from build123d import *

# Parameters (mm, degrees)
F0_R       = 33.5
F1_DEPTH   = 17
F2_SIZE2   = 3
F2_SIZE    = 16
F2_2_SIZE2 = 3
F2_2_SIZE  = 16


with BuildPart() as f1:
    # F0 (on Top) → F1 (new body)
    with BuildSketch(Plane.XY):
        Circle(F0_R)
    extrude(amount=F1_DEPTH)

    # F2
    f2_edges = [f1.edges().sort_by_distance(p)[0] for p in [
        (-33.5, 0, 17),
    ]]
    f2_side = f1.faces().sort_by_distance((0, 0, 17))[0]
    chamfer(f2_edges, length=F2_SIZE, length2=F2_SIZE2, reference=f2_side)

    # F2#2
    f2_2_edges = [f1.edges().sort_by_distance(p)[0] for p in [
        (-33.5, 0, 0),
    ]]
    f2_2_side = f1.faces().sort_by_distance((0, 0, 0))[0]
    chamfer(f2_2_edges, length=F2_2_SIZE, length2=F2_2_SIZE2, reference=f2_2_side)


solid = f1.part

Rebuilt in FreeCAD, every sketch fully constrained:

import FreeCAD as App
import Part
import Sketcher
from FreeCAD import Vector
Q = App.Units.Quantity


def edges_at(feature, points):
    """Names of the edges that pass closest to the given points."""
    edges = feature.Shape.Edges
    near = lambda p: min(range(len(edges)), key=lambda i: edges[i].distToShape(Part.Vertex(*p))[0])
    return sorted({f"Edge{near(p) + 1}" for p in points})

doc = App.newDocument("Part")
body = doc.addObject("PartDesign::Body", "Body")

# Sketch on XY plane
sketch1 = body.newObject("Sketcher::SketchObject", "Sketch")
sketch1.AttachmentSupport = (doc.getObject("XY_Plane"), [""])
sketch1.MapMode = "FlatFace"
sketch1.addGeometry(Part.Circle(Vector(0, 0, 0), Vector(0, 0, 1), 34), False)
sketch1.addConstraint([
    Sketcher.Constraint("Coincident", 0, 3, -1, 1),
    Sketcher.Constraint("Diameter", 0, Q("67 mm")),
])
pad1 = body.newObject("PartDesign::Pad", "Pad")
pad1.Profile = sketch1
pad1.Length = 17
doc.recompute()

chamfer = body.newObject("PartDesign::Chamfer", "Chamfer")
chamfer.Base = (pad1, edges_at(pad1, [(-33.5, 0, 17)]))
chamfer.ChamferType = "Two distances"
chamfer.Size = 16
chamfer.Size2 = 3
chamfer.FlipDirection = True
doc.recompute()

chamfer2 = body.newObject("PartDesign::Chamfer", "Chamfer001")
chamfer2.Base = (chamfer, edges_at(chamfer, [(-33.5, 0, 0)]))
chamfer2.ChamferType = "Two distances"
chamfer2.Size = 16
chamfer2.Size2 = 3
chamfer2.FlipDirection = True

doc.recompute()
